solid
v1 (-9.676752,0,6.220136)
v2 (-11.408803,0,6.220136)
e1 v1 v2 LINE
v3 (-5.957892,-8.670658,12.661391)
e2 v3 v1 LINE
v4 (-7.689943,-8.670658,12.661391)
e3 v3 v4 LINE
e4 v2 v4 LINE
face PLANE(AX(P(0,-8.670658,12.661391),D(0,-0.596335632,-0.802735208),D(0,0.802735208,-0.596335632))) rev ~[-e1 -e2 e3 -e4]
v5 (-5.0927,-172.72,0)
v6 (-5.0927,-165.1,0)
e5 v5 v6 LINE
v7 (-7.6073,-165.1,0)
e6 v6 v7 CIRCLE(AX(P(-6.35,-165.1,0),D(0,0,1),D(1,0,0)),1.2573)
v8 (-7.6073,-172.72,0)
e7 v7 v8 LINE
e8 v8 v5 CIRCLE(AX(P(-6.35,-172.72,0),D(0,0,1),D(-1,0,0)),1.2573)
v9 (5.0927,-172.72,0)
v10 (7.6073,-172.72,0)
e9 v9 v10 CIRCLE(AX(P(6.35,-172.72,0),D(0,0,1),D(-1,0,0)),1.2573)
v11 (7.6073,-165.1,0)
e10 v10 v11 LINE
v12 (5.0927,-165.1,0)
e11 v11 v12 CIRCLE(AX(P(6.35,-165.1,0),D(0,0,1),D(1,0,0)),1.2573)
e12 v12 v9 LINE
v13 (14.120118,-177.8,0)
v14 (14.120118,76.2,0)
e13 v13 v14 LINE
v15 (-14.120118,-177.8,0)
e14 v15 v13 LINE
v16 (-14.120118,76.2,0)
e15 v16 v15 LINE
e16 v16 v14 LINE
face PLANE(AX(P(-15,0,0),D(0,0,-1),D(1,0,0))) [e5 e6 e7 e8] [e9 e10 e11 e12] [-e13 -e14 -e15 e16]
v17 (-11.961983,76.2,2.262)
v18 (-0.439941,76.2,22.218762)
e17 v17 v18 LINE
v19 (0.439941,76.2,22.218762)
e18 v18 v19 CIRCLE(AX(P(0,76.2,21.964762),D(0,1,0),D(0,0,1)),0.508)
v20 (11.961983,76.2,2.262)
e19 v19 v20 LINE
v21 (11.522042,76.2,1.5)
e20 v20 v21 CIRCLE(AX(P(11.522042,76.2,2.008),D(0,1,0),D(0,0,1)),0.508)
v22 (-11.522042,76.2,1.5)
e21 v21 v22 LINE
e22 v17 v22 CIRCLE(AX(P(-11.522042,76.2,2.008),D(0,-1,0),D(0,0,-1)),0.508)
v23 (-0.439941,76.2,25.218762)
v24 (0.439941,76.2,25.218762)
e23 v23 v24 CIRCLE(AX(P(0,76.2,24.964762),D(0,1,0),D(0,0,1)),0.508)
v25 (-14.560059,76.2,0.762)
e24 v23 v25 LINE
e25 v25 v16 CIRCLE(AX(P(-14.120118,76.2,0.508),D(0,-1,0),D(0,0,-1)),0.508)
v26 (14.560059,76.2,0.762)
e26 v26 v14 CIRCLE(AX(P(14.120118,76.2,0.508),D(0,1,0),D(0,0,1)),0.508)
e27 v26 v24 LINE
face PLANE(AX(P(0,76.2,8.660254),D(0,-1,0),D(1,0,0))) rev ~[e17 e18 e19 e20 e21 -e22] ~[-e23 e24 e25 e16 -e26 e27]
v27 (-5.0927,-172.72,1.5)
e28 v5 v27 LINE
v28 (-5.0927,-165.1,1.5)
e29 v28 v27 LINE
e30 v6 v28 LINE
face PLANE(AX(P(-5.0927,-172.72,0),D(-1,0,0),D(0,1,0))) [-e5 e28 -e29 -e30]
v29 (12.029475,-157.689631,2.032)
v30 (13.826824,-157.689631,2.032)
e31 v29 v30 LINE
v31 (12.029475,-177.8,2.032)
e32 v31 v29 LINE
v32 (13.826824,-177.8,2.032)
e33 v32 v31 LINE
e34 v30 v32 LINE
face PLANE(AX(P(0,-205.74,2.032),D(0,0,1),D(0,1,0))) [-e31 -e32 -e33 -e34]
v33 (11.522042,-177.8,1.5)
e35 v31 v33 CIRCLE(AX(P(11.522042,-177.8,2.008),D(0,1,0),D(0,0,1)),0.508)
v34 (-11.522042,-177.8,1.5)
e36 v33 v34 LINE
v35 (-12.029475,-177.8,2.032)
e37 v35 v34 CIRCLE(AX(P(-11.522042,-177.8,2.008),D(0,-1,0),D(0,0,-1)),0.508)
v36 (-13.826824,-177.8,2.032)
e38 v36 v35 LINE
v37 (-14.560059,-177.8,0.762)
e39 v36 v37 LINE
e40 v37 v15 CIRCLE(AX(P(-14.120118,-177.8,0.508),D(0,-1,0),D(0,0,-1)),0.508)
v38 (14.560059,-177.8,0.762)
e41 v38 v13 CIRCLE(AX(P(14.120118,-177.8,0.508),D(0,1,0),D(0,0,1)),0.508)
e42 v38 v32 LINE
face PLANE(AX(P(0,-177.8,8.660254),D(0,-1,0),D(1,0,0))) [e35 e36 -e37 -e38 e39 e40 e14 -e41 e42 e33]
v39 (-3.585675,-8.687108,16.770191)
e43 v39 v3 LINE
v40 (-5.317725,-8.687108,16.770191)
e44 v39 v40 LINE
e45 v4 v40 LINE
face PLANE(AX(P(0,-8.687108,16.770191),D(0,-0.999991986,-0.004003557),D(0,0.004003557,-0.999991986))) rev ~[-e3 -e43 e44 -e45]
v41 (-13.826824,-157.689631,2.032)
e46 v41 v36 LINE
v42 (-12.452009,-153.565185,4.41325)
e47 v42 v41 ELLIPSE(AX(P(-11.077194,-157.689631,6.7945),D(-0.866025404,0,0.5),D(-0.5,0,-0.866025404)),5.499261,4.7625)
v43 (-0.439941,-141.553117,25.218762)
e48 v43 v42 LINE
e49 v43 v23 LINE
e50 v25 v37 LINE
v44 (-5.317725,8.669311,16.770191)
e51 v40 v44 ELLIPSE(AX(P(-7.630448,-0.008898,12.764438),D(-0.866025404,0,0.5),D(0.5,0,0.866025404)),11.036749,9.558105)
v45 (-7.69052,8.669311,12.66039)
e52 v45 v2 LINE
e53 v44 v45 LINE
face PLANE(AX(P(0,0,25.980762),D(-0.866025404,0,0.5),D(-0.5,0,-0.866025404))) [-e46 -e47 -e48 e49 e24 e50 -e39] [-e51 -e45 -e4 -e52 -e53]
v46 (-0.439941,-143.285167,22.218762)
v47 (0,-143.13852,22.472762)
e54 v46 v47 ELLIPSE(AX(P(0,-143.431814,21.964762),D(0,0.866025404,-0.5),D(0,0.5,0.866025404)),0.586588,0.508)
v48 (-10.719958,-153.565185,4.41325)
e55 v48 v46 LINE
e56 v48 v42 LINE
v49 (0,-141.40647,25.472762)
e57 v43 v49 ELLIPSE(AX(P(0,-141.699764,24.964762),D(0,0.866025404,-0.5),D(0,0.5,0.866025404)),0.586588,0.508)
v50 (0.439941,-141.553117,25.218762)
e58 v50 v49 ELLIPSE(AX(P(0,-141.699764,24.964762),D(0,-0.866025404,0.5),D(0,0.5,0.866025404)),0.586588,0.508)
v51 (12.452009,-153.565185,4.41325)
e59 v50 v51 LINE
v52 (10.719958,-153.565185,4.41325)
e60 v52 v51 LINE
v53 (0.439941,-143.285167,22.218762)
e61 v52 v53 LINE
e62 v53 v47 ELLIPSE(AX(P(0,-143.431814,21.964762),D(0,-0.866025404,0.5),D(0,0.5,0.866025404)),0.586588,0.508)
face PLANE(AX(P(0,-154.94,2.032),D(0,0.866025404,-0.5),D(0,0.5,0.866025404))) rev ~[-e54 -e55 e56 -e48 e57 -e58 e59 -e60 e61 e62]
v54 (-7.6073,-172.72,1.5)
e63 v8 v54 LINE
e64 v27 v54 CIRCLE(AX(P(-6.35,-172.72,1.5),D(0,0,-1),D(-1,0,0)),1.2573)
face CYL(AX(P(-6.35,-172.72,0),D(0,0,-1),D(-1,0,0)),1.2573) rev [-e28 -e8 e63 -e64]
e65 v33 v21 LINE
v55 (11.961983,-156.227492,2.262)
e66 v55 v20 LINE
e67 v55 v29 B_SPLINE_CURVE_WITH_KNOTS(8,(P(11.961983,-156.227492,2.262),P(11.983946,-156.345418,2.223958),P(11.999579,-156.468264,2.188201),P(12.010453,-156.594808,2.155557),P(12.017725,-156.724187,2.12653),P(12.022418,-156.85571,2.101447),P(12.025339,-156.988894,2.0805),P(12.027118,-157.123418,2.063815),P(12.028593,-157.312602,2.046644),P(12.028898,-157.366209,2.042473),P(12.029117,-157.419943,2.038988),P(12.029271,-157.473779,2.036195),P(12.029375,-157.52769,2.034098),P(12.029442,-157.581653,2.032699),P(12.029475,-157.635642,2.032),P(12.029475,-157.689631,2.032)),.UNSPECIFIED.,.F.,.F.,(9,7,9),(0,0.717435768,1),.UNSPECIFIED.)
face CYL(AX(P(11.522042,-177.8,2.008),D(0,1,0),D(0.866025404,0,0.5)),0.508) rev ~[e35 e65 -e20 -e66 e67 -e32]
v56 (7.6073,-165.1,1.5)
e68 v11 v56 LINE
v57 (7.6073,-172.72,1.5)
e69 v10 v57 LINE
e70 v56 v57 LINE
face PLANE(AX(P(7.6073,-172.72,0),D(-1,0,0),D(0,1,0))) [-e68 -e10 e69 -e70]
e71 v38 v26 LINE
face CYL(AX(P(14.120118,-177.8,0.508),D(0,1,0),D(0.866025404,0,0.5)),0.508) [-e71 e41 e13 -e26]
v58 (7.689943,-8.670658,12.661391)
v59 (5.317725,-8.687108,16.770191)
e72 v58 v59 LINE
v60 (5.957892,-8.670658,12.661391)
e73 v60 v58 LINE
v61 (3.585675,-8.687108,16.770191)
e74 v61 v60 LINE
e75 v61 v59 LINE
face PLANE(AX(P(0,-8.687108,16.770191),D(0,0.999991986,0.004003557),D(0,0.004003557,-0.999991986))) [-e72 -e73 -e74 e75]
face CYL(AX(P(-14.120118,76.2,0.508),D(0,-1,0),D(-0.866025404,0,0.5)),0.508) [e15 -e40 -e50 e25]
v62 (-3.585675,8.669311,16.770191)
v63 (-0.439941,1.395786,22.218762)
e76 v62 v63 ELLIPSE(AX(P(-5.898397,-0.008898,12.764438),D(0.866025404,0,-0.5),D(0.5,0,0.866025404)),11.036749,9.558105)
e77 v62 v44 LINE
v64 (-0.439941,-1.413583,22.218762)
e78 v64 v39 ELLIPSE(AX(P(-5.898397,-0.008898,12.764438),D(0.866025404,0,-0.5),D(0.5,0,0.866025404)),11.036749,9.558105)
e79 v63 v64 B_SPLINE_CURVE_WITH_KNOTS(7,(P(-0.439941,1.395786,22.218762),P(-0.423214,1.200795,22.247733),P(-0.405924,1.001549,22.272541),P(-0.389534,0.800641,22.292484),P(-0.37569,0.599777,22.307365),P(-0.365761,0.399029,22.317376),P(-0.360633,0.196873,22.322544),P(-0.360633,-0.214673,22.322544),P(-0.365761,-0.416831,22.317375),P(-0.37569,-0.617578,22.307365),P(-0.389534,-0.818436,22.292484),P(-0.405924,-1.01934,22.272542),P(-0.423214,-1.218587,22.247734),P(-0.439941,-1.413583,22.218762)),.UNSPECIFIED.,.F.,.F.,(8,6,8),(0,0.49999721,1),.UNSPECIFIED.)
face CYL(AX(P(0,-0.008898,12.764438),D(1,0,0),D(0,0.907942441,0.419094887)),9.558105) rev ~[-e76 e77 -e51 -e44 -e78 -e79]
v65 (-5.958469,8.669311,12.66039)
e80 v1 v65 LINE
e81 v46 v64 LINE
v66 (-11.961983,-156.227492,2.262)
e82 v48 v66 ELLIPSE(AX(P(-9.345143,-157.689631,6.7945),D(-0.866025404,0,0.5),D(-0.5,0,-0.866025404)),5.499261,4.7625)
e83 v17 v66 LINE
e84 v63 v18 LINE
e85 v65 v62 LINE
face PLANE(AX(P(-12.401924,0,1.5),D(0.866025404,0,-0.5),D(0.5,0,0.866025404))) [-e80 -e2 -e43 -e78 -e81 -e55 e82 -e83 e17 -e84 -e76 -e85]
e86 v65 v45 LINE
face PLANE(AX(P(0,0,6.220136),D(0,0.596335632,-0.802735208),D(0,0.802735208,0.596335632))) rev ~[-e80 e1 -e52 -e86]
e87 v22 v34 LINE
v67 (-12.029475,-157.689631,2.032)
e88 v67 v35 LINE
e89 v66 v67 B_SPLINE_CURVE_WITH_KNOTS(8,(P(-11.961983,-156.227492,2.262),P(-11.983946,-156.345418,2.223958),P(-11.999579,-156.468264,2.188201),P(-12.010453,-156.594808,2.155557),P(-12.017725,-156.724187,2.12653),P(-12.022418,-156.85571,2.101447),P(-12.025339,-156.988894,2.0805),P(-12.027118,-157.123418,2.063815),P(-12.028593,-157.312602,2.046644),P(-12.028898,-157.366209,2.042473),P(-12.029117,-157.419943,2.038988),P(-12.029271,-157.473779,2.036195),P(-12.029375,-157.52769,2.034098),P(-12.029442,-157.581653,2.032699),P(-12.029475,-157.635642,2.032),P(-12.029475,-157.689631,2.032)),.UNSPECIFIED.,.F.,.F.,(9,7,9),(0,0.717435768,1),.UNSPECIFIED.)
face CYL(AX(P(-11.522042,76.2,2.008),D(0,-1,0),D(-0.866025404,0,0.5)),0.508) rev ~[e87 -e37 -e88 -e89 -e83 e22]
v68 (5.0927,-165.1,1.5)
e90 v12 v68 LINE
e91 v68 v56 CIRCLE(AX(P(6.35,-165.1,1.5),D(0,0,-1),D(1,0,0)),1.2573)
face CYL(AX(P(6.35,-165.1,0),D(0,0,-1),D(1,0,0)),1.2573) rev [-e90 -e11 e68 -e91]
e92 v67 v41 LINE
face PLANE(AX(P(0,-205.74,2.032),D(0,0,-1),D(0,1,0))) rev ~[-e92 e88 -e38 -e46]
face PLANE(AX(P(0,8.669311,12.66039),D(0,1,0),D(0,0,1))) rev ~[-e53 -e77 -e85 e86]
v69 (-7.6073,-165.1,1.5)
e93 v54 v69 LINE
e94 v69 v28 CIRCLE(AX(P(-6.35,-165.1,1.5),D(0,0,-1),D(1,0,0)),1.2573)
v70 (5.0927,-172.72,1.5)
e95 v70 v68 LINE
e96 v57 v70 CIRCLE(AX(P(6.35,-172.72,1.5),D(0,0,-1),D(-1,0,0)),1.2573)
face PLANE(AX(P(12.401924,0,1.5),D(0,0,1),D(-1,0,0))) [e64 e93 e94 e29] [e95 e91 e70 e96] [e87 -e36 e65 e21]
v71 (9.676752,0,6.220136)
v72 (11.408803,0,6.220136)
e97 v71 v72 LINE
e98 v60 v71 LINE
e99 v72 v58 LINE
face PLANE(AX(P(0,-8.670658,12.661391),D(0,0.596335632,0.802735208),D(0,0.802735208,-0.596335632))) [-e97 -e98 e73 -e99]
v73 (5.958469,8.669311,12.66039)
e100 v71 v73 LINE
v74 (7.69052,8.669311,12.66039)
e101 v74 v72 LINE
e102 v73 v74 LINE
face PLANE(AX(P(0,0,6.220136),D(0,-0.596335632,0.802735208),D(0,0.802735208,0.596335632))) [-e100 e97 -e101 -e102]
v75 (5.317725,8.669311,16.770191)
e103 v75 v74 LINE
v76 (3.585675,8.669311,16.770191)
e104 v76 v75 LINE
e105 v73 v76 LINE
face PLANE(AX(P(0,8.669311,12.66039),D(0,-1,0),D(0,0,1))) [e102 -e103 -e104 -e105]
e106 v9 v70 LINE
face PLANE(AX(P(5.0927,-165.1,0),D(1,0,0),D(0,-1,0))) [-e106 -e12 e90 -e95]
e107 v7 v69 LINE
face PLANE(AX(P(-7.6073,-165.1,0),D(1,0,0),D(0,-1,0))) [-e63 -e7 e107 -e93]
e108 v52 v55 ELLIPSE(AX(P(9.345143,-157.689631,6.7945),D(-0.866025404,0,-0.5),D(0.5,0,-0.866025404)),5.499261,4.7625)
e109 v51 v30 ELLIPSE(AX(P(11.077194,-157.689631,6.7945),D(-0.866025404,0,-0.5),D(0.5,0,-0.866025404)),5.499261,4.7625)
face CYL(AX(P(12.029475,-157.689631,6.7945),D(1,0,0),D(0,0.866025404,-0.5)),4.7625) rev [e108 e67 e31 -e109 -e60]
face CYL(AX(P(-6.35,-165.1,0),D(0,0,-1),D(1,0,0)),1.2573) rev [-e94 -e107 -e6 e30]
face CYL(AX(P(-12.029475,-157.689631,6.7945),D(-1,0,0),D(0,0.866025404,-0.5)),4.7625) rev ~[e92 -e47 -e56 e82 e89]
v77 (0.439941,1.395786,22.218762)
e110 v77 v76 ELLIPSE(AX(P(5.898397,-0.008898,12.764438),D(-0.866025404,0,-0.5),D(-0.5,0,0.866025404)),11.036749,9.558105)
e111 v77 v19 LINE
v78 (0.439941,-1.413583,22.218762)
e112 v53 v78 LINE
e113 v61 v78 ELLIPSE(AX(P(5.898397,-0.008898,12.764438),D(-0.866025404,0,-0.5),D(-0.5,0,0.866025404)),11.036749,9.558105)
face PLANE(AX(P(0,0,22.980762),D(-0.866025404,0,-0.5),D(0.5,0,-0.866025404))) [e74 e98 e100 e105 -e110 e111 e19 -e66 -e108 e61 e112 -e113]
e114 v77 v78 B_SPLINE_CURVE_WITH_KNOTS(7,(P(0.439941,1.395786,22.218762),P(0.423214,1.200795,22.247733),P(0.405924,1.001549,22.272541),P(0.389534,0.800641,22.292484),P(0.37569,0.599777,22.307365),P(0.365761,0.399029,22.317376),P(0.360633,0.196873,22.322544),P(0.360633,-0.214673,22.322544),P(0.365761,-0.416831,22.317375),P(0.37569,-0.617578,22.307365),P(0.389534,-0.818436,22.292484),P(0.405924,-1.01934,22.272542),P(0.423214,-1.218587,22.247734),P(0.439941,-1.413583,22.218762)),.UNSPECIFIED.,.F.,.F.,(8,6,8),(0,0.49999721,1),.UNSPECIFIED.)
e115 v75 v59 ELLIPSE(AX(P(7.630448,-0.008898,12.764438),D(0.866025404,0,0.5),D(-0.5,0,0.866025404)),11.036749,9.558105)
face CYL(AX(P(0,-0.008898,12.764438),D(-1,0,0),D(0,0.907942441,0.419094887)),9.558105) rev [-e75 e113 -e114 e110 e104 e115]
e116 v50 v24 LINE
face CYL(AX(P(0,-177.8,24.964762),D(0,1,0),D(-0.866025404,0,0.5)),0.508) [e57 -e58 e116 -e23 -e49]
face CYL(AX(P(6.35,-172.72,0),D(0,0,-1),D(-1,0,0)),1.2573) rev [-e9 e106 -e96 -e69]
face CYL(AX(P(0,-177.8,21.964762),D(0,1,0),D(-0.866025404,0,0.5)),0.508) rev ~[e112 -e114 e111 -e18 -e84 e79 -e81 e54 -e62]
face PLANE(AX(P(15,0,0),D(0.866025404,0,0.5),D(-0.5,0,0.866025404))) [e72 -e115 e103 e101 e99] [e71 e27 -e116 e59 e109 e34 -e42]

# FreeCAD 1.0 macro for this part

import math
import FreeCAD as App
import Part
import Sketcher
Q = App.Units.Quantity


def edges_at(feature, points):
    """Names of the edges that pass closest to the given points."""
    edges = feature.Shape.Edges
    near = lambda p: min(range(len(edges)), key=lambda i: edges[i].distToShape(Part.Vertex(*p))[0])
    return sorted({f"Edge{near(p) + 1}" for p in points})

doc = App.newDocument("Part")
body = doc.addObject("PartDesign::Body", "Body")

# Sketch on XZ plane
sketch1 = body.newObject("Sketcher::SketchObject", "Sketch")
sketch1.AttachmentSupport = (doc.getObject("XZ_Plane"), [""])
sketch1.MapMode = "FlatFace"
sketch1.addGeometry(Part.LineSegment(App.Vector(0, 26, 0), App.Vector(-15, 0, 0)), False)
sketch1.addGeometry(Part.LineSegment(App.Vector(-15, 0, 0), App.Vector(15, 0, 0)), False)
sketch1.addGeometry(Part.LineSegment(App.Vector(15, 0, 0), App.Vector(0, 26, 0)), False)
sketch1.addGeometry(Part.LineSegment(App.Vector(12, 2, 0), App.Vector(-12, 2, 0)), False)
sketch1.addGeometry(Part.LineSegment(App.Vector(-12, 2, 0), App.Vector(0, 23, 0)), False)
sketch1.addGeometry(Part.LineSegment(App.Vector(0, 23, 0), App.Vector(12, 2, 0)), False)
sketch1.addConstraint(Sketcher.Constraint("Coincident", 0, 2, 1, 1))
sketch1.addConstraint(Sketcher.Constraint("Coincident", 1, 2, 2, 1))
sketch1.addConstraint(Sketcher.Constraint("Coincident", 2, 2, 0, 1))
sketch1.addConstraint(Sketcher.Constraint("Coincident", 3, 2, 4, 1))
sketch1.addConstraint(Sketcher.Constraint("Coincident", 4, 2, 5, 1))
sketch1.addConstraint(Sketcher.Constraint("Coincident", 5, 2, 3, 1))
sketch1.addConstraint(Sketcher.Constraint("Horizontal", 1))
sketch1.addConstraint(Sketcher.Constraint("Horizontal", 3))
sketch1.addConstraint(Sketcher.Constraint("Symmetric", 0, 2, 1, 2, -1, 1))
sketch1.addConstraint(Sketcher.Constraint("PointOnObject", 2, 2, -2))
sketch1.addConstraint(Sketcher.Constraint("PointOnObject", 4, 2, -2))
sketch1.addConstraint(Sketcher.Constraint("Parallel", 0, 4))
sketch1.addConstraint(Sketcher.Constraint("Parallel", 2, 5))
sketch1.addConstraint(Sketcher.Constraint("Angle", 0, Q("-120 deg")))
sketch1.addConstraint(Sketcher.Constraint("DistanceX", 1, 1, 1, 2, Q("30 mm")))
sketch1.addConstraint(Sketcher.Constraint("DistanceY", -1, 1, 3, 2, Q("1.5 mm")))
sketch1.addConstraint(Sketcher.Constraint("DistanceY", 4, 2, 2, 2, Q("3 mm")))
pad1 = body.newObject("PartDesign::Pad", "Pad")
pad1.Profile = sketch1
pad1.Type = "TwoLengths"
pad1.Length = Q("7 in")
pad1.Length2 = Q("3 in")
doc.recompute()

fillet = body.newObject("PartDesign::Fillet", "Fillet")
fillet.Base = (pad1, edges_at(pad1, [
    (0, -50.8, 25.981),
    (15, -50.8, 0),
    (-15, -50.8, 0),
    (-12.402, -50.8, 1.5),
    (0, -50.8, 22.981),
    (12.402, -50.8, 1.5),
]))
fillet.Radius = Q("0.02 in")

# Sketch on YZ plane
sketch2 = body.newObject("Sketcher::SketchObject", "Sketch001")
sketch2.AttachmentSupport = (doc.getObject("YZ_Plane"), [""])
sketch2.MapMode = "FlatFace"
sketch2.addGeometry(Part.LineSegment(App.Vector(-8.7, 16.8, 0), App.Vector(-8.7, 12.7, 0)), False)
sketch2.addGeometry(Part.LineSegment(App.Vector(-8.7, 12.7, 0), App.Vector(0, 6.2, 0)), False)
sketch2.addGeometry(Part.LineSegment(App.Vector(0, 6.2, 0), App.Vector(8.7, 12.7, 0)), False)
sketch2.addGeometry(Part.LineSegment(App.Vector(8.7, 12.7, 0), App.Vector(8.7, 16.8, 0)), False)
sketch2.addGeometry(Part.ArcOfCircle(Part.Circle(App.Vector(0, 12.8, 0), App.Vector(0, 0, 1), 9.6), math.radians(25), math.radians(155)), False)
sketch2.addConstraint(Sketcher.Constraint("Coincident", 0, 2, 1, 1))
sketch2.addConstraint(Sketcher.Constraint("Coincident", 1, 2, 2, 1))
sketch2.addConstraint(Sketcher.Constraint("Coincident", 2, 2, 3, 1))
sketch2.addConstraint(Sketcher.Constraint("Coincident", 3, 2, 4, 1))
sketch2.addConstraint(Sketcher.Constraint("Coincident", 4, 2, 0, 1))
sketch2.addConstraint(Sketcher.Constraint("Vertical", 3))
sketch2.addConstraint(Sketcher.Constraint("PointOnObject", 1, 2, -2))
sketch2.addConstraint(Sketcher.Constraint("Horizontal", 3, 2, 4, 2))
sketch2.addConstraint(Sketcher.Constraint("DistanceY", 3, 1, 3, 2, Q("4.109801 mm")))
sketch2.addConstraint(Sketcher.Constraint("Radius", 4, Q("9.558105 mm")))
sketch2.addConstraint(Sketcher.Constraint("DistanceX", 4, 3, -1, 1, Q("0.008898 mm")))
sketch2.addConstraint(Sketcher.Constraint("DistanceY", 2, 2, 0, 2, Q("0.001001 mm")))
sketch2.addConstraint(Sketcher.Constraint("DistanceY", -1, 1, 4, 3, Q("12.764438 mm")))
sketch2.addConstraint(Sketcher.Constraint("DistanceY", -1, 1, 0, 2, Q("12.661391 mm")))
sketch2.addConstraint(Sketcher.Constraint("DistanceX", 0, 2, 4, 3, Q("8.661759 mm")))
sketch2.addConstraint(Sketcher.Constraint("Distance", 1, Q("10.801392 mm")))
pocket1 = body.newObject("PartDesign::Pocket", "Pocket")
pocket1.Profile = sketch2
pocket1.Type = "ThroughAll"
pocket1.Midplane = True

# Sketch on XY plane
sketch3 = body.newObject("Sketcher::SketchObject", "Sketch002")
sketch3.AttachmentSupport = (doc.getObject("XY_Plane"), [""])
sketch3.MapMode = "FlatFace"
sketch3.addGeometry(Part.LineSegment(App.Vector(-5.1, -172.7, 0), App.Vector(-5.1, -165.1, 0)), False)
sketch3.addGeometry(Part.ArcOfCircle(Part.Circle(App.Vector(-6.3, -165.1, 0), App.Vector(0, 0, 1), 1.3), math.radians(0), math.radians(180)), False)
sketch3.addGeometry(Part.LineSegment(App.Vector(-7.6, -165.1, 0), App.Vector(-7.6, -172.7, 0)), False)
sketch3.addGeometry(Part.ArcOfCircle(Part.Circle(App.Vector(-6.3, -172.7, 0), App.Vector(0, 0, 1), 1.3), math.radians(180), math.radians(360)), False)
sketch3.addGeometry(Part.ArcOfCircle(Part.Circle(App.Vector(6.3, -165.1, 0), App.Vector(0, 0, 1), 1.3), math.radians(0), math.radians(180)), False)
sketch3.addGeometry(Part.LineSegment(App.Vector(5.1, -165.1, 0), App.Vector(5.1, -172.7, 0)), False)
sketch3.addGeometry(Part.ArcOfCircle(Part.Circle(App.Vector(6.3, -172.7, 0), App.Vector(0, 0, 1), 1.3), math.radians(180), math.radians(360)), False)
sketch3.addGeometry(Part.LineSegment(App.Vector(7.6, -172.7, 0), App.Vector(7.6, -165.1, 0)), False)
sketch3.addConstraint(Sketcher.Constraint("Tangent", 0, 2, 1, 1))
sketch3.addConstraint(Sketcher.Constraint("Tangent", 1, 2, 2, 1))
sketch3.addConstraint(Sketcher.Constraint("Tangent", 2, 2, 3, 1))
sketch3.addConstraint(Sketcher.Constraint("Tangent", 3, 2, 0, 1))
sketch3.addConstraint(Sketcher.Constraint("Tangent", 4, 2, 5, 1))
sketch3.addConstraint(Sketcher.Constraint("Tangent", 5, 2, 6, 1))
sketch3.addConstraint(Sketcher.Constraint("Tangent", 6, 2, 7, 1))
sketch3.addConstraint(Sketcher.Constraint("Tangent", 7, 2, 4, 1))
sketch3.addConstraint(Sketcher.Constraint("Vertical", 0))
sketch3.addConstraint(Sketcher.Constraint("Vertical", 2))
sketch3.addConstraint(Sketcher.Constraint("Vertical", 5))
sketch3.addConstraint(Sketcher.Constraint("Vertical", 7))
sketch3.addConstraint(Sketcher.Constraint("Equal", 3, 4))
sketch3.addConstraint(Sketcher.Constraint("Symmetric", 1, 3, 4, 3, -2))
sketch3.addConstraint(Sketcher.Constraint("Horizontal", 3, 3, 6, 3))
sketch3.addConstraint(Sketcher.Constraint("DistanceY", 0, 1, 0, 2, Q("0.3 in")))
sketch3.addConstraint(Sketcher.Constraint("DistanceY", 1, 3, -1, 1, Q("6.5 in")))
sketch3.addConstraint(Sketcher.Constraint("Radius", 1, Q("0.0495 in")))
sketch3.addConstraint(Sketcher.Constraint("DistanceX", 1, 3, 4, 3, Q("0.5 in")))
pocket2 = body.newObject("PartDesign::Pocket", "Pocket001")
pocket2.Profile = sketch3
pocket2.Type = "ThroughAll"
pocket2.Reversed = True

# Sketch on YZ plane
sketch4 = body.newObject("Sketcher::SketchObject", "Sketch003")
sketch4.AttachmentSupport = (doc.getObject("YZ_Plane"), [""])
sketch4.MapMode = "FlatFace"
sketch4.addGeometry(Part.LineSegment(App.Vector(-204, 34, 0), App.Vector(-206, 2, 0)), False)
sketch4.addGeometry(Part.LineSegment(App.Vector(-206, 2, 0), App.Vector(-155, 2, 0)), False)
sketch4.addGeometry(Part.LineSegment(App.Vector(-155, 2, 0), App.Vector(-137, 34, 0)), False)
sketch4.addGeometry(Part.LineSegment(App.Vector(-137, 34, 0), App.Vector(-204, 34, 0)), False)
sketch4.addConstraint(Sketcher.Constraint("Coincident", 0, 2, 1, 1))
sketch4.addConstraint(Sketcher.Constraint("Coincident", 1, 2, 2, 1))
sketch4.addConstraint(Sketcher.Constraint("Coincident", 2, 2, 3, 1))
sketch4.addConstraint(Sketcher.Constraint("Coincident", 3, 2, 0, 1))
sketch4.addConstraint(Sketcher.Constraint("Horizontal", 1))
sketch4.addConstraint(Sketcher.Constraint("Horizontal", 3))
sketch4.addConstraint(Sketcher.Constraint("DistanceX", 1, 1, 1, 2, Q("2 in")))
sketch4.addConstraint(Sketcher.Constraint("Angle", 2, Q("60 deg")))
sketch4.addConstraint(Sketcher.Constraint("DistanceX", 0, 2, -1, 1, Q("8.1 in")))
sketch4.addConstraint(Sketcher.Constraint("DistanceY", -1, 1, 0, 2, Q("0.08 in")))
sketch4.addConstraint(Sketcher.Constraint("DistanceY", -1, 1, 2, 2, Q("1.33 in")))
sketch4.addConstraint(Sketcher.Constraint("DistanceX", 3, 2, 3, 1, Q("67.547329 mm")))
pocket3 = body.newObject("PartDesign::Pocket", "Pocket002")
pocket3.Profile = sketch4
pocket3.Type = "ThroughAll"
pocket3.Midplane = True
doc.recompute()

fillet2 = body.newObject("PartDesign::Fillet", "Fillet001")
fillet2.Base = (pocket3, edges_at(pocket3, [(12.928, -154.94, 2.032), (-12.928, -154.94, 2.032)]))
fillet2.Radius = Q("0.1875 in")

doc.recompute()
